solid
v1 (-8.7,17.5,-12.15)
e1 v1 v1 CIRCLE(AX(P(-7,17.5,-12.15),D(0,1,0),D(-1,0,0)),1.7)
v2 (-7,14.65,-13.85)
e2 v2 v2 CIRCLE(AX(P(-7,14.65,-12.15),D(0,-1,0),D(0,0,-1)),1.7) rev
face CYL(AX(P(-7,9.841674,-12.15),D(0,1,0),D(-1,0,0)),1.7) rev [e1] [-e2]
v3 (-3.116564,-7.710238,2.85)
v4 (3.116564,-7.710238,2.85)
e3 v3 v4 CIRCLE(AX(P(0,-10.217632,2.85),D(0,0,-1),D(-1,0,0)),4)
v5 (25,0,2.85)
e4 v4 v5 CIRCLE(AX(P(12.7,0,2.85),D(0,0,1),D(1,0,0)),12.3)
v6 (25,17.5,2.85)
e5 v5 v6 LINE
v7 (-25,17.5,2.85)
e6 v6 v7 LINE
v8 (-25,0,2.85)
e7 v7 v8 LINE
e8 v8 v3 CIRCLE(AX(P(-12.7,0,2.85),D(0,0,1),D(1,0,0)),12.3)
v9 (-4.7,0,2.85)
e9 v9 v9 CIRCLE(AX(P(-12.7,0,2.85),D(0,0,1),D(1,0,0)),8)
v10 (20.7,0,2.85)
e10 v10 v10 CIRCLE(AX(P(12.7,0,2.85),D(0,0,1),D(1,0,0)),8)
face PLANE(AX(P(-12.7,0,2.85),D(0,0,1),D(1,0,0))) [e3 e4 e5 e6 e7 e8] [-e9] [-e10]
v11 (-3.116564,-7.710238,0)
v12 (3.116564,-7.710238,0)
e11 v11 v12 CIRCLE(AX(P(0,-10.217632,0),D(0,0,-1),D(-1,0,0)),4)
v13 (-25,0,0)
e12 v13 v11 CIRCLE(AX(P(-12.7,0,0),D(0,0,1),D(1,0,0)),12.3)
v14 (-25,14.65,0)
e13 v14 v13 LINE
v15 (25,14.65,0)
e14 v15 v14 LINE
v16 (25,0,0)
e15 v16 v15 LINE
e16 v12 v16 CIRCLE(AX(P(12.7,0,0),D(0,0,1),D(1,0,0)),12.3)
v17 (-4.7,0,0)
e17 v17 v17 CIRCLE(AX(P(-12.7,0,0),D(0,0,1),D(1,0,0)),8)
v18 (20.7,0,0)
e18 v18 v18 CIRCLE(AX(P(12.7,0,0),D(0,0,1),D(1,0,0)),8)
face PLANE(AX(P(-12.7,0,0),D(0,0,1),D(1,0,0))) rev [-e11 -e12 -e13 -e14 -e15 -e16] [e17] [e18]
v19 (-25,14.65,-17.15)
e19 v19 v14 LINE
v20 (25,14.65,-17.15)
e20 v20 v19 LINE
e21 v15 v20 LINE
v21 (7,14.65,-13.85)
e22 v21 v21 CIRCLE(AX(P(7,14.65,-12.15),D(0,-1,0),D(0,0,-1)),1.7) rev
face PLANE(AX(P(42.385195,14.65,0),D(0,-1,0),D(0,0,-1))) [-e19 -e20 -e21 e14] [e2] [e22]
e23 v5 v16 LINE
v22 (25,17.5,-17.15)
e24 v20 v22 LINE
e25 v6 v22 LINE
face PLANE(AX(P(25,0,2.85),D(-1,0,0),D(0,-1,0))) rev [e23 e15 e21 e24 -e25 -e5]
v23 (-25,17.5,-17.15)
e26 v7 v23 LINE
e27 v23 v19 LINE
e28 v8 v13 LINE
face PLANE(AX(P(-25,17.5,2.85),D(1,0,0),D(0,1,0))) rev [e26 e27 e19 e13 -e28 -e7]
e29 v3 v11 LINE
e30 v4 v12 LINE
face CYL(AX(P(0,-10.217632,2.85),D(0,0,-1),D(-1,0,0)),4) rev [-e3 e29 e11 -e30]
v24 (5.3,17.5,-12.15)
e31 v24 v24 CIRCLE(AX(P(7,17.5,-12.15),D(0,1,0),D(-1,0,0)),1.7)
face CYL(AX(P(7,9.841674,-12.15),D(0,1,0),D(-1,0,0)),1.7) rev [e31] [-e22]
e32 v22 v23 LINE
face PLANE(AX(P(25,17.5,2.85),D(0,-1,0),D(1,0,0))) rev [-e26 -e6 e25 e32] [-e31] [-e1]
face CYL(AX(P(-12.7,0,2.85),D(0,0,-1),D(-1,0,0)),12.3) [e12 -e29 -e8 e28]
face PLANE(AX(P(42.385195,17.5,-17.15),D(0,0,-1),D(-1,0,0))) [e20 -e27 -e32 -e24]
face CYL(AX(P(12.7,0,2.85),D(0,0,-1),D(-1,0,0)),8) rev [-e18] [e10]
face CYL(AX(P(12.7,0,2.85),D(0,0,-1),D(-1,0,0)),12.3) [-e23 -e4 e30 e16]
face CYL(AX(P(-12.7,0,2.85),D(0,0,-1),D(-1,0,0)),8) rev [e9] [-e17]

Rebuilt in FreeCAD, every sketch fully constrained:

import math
import FreeCAD as App
import Part
import Sketcher
Q = App.Units.Quantity

doc = App.newDocument("Part")
params = doc.addObject("Spreadsheet::Sheet", "Params")
for row, (alias, value) in enumerate([
    ("sketch1_diameter", "16 mm"),
    ("sketch1_radius", "4 mm"),
    ("sketch1_radius2", "12.3 mm"),
    ("sketch1_width", "50 mm"),
    ("sketch1_height", "17.5 mm"),
    ("pad1_length", "2.85 mm"),
    ("sketch2_width", "2.85 mm"),
    ("sketch2_height", "17.15 mm"),
    ("pad2_length", "50 mm"),
    ("sketch3_diameter", "3.4 mm"),
    ("pocket1_length", "2.85 mm"),
], start=1):
    params.set(f"A{row}", alias)
    params.set(f"B{row}", "=" + value)
    params.setAlias(f"B{row}", alias)

body = doc.addObject("PartDesign::Body", "Body")

# Sketch on XY plane
sketch1 = body.newObject("Sketcher::SketchObject", "Sketch")
sketch1.AttachmentSupport = (doc.getObject("XY_Plane"), [""])
sketch1.MapMode = "FlatFace"
sketch1.addGeometry([
    Part.LineSegment(App.Vector(-25, 17.5, 0), App.Vector(-25, 0, 0)),  # 0
    Part.ArcOfCircle(Part.Circle(App.Vector(-12.7, 0, 0), App.Vector(0, 0, 1), 12.3), math.radians(180), math.radians(321)),  # 1
    Part.ArcOfCircle(Part.Circle(App.Vector(0, -10.2, 0), App.Vector(0, 0, 1), 4), math.radians(39), math.radians(141)),  # 2
    Part.ArcOfCircle(Part.Circle(App.Vector(12.7, 0, 0), App.Vector(0, 0, 1), 12.3), math.radians(-141), math.radians(0)),  # 3
    Part.LineSegment(App.Vector(25, 0, 0), App.Vector(25, 17.5, 0)),  # 4
    Part.LineSegment(App.Vector(25, 17.5, 0), App.Vector(-25, 17.5, 0)),  # 5
    Part.Circle(App.Vector(-12.7, 0, 0), App.Vector(0, 0, 1), 8),  # 6
    Part.Circle(App.Vector(12.7, 0, 0), App.Vector(0, 0, 1), 8),  # 7
], False)
sketch1.addConstraint([
    Sketcher.Constraint("Tangent", 0, 2, 1, 1),
    Sketcher.Constraint("Tangent", 1, 2, 2, 2),
    Sketcher.Constraint("Tangent", 2, 1, 3, 1),
    Sketcher.Constraint("Tangent", 3, 2, 4, 1),
    Sketcher.Constraint("Coincident", 4, 2, 5, 1),
    Sketcher.Constraint("Coincident", 5, 2, 0, 1),
    Sketcher.Constraint("Vertical", 0),
    Sketcher.Constraint("Vertical", 4),
    Sketcher.Constraint("Horizontal", 5),
    Sketcher.Constraint("Coincident", 6, 3, 1, 3),
    Sketcher.Constraint("Coincident", 7, 3, 3, 3),
    Sketcher.Constraint("Equal", 1, 3),
    Sketcher.Constraint("Equal", 6, 7),
    Sketcher.Constraint("Symmetric", 1, 3, 3, 3, -1, 1),
    Sketcher.Constraint("PointOnObject", 1, 3, -1),
    Sketcher.Constraint("Diameter", 6, Q("16 mm")),
    Sketcher.Constraint("Radius", 2, Q("4 mm")),
    Sketcher.Constraint("Radius", 1, Q("12.3 mm")),
    Sketcher.Constraint("DistanceX", 5, 2, 5, 1, Q("50 mm")),
    Sketcher.Constraint("DistanceY", 0, 2, 0, 1, Q("17.5 mm")),
])
sketch1.setExpression("Constraints[15]", "Params.sketch1_diameter")
sketch1.setExpression("Constraints[16]", "Params.sketch1_radius")
sketch1.setExpression("Constraints[17]", "Params.sketch1_radius2")
sketch1.setExpression("Constraints[18]", "Params.sketch1_width")
sketch1.setExpression("Constraints[19]", "Params.sketch1_height")
pad1 = body.newObject("PartDesign::Pad", "Pad")
pad1.Profile = sketch1
pad1.setExpression("Length", "Params.pad1_length")

# Sketch on YZ plane
sketch2 = body.newObject("Sketcher::SketchObject", "Sketch001")
sketch2.AttachmentSupport = (doc.getObject("YZ_Plane"), [""])
sketch2.MapMode = "FlatFace"
sketch2.AttachmentOffset = App.Placement(App.Vector(0, 0, -25), App.Rotation())
sketch2.addGeometry([
    Part.LineSegment(App.Vector(17.5, -17.1, 0), App.Vector(14.7, -17.1, 0)),
    Part.LineSegment(App.Vector(14.7, -17.1, 0), App.Vector(14.7, 0, 0)),
    Part.LineSegment(App.Vector(14.7, 0, 0), App.Vector(17.5, 0, 0)),
    Part.LineSegment(App.Vector(17.5, 0, 0), App.Vector(17.5, -17.1, 0)),
], False)
sketch2.addConstraint([
    Sketcher.Constraint("Coincident", 0, 2, 1, 1),
    Sketcher.Constraint("Coincident", 1, 2, 2, 1),
    Sketcher.Constraint("Coincident", 2, 2, 3, 1),
    Sketcher.Constraint("Coincident", 3, 2, 0, 1),
    Sketcher.Constraint("Horizontal", 0),
    Sketcher.Constraint("Vertical", 1),
    Sketcher.Constraint("Horizontal", 2),
    Sketcher.Constraint("Vertical", 3),
    Sketcher.Constraint("PointOnObject", 1, 2, -1),
    Sketcher.Constraint("DistanceX", 0, 2, 0, 1, Q("2.85 mm")),
    Sketcher.Constraint("DistanceY", 1, 1, 1, 2, Q("17.15 mm")),
    Sketcher.Constraint("DistanceX", -1, 1, 2, 2, Q("17.5 mm")),
])
sketch2.setExpression("Constraints[9]", "Params.sketch2_width")
sketch2.setExpression("Constraints[10]", "Params.sketch2_height")
pad2 = body.newObject("PartDesign::Pad", "Pad001")
pad2.Profile = sketch2
pad2.setExpression("Length", "Params.pad2_length")

# Sketch on XZ plane
sketch3 = body.newObject("Sketcher::SketchObject", "Sketch002")
sketch3.AttachmentSupport = (doc.getObject("XZ_Plane"), [""])
sketch3.MapMode = "FlatFace"
sketch3.AttachmentOffset = App.Placement(App.Vector(0, 0, -17.5), App.Rotation())
sketch3.addGeometry([
    Part.Circle(App.Vector(-7, -12.2, 0), App.Vector(0, 0, 1), 1.7),
    Part.Circle(App.Vector(7, -12.2, 0), App.Vector(0, 0, 1), 1.7),
], False)
sketch3.addConstraint([
    Sketcher.Constraint("Equal", 0, 1),
    Sketcher.Constraint("Symmetric", 0, 3, 1, 3, -2),
    Sketcher.Constraint("Diameter", 0, Q("3.4 mm")),
    Sketcher.Constraint("DistanceX", 0, 3, -1, 1, Q("7 mm")),
    Sketcher.Constraint("DistanceY", 0, 3, -1, 1, Q("12.15 mm")),
])
sketch3.setExpression("Constraints[2]", "Params.sketch3_diameter")
pocket1 = body.newObject("PartDesign::Pocket", "Pocket")
pocket1.Profile = sketch3
pocket1.setExpression("Length", "Params.pocket1_length")
pocket1.Reversed = True

doc.recompute()
